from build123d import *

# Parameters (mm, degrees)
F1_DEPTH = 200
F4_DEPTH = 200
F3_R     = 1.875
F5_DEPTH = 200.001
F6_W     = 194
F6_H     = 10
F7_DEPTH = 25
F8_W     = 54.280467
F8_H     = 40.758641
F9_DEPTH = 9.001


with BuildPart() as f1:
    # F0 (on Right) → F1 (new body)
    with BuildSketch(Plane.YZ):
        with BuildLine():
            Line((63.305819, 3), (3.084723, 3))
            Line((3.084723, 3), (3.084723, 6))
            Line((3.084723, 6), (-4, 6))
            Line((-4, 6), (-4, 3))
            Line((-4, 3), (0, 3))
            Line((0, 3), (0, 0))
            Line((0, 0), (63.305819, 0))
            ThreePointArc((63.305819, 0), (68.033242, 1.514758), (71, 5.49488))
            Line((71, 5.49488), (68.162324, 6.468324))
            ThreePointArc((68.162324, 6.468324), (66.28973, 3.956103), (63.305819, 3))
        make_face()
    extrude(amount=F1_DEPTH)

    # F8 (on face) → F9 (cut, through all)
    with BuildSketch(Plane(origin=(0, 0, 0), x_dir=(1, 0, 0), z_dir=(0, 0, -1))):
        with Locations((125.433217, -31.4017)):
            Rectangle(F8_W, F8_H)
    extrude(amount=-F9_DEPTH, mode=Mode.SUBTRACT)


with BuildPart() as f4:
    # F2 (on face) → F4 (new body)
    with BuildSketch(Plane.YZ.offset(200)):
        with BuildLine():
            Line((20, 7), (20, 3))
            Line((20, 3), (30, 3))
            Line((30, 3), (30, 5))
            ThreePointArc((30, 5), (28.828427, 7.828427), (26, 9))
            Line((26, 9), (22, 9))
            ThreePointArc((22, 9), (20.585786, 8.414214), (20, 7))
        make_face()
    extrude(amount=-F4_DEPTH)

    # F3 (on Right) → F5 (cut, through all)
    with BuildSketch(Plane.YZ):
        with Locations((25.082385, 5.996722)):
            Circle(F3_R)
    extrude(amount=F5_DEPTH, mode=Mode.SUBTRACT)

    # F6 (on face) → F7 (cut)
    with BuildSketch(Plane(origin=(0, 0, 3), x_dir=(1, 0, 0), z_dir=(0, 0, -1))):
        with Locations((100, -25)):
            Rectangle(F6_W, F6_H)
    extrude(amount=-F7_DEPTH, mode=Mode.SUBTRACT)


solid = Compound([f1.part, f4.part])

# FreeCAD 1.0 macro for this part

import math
import FreeCAD as App
import Part
import Sketcher
from FreeCAD import Vector
Q = App.Units.Quantity

doc = App.newDocument("Part")
body = doc.addObject("PartDesign::Body", "Body")

# Sketch on YZ plane
sketch1 = body.newObject("Sketcher::SketchObject", "Sketch")
sketch1.AttachmentSupport = (doc.getObject("YZ_Plane"), [""])
sketch1.MapMode = "FlatFace"
sketch1.addGeometry(Part.LineSegment(Vector(63.3, 3, 0), Vector(3.1, 3, 0)), False)
sketch1.addGeometry(Part.LineSegment(Vector(3.1, 3, 0), Vector(3.1, 6, 0)), False)
sketch1.addGeometry(Part.LineSegment(Vector(3.1, 6, 0), Vector(-4, 6, 0)), False)
sketch1.addGeometry(Part.LineSegment(Vector(-4, 6, 0), Vector(-4, 3, 0)), False)
sketch1.addGeometry(Part.LineSegment(Vector(-4, 3, 0), Vector(0, 3, 0)), False)
sketch1.addGeometry(Part.LineSegment(Vector(0, 3, 0), Vector(0, 0, 0)), False)
sketch1.addGeometry(Part.LineSegment(Vector(0, 0, 0), Vector(63.3, 0, 0)), False)
sketch1.addGeometry(Part.ArcOfCircle(Part.Circle(Vector(63.3, 8.1, 0), Vector(0, 0, 1), 8.1), math.radians(-90), math.radians(-19)), False)
sketch1.addGeometry(Part.LineSegment(Vector(71, 5.5, 0), Vector(68.2, 6.5, 0)), False)
sketch1.addGeometry(Part.ArcOfCircle(Part.Circle(Vector(63.3, 8.1, 0), Vector(0, 0, 1), 5.1), math.radians(-90), math.radians(-19)), False)
sketch1.addConstraint(Sketcher.Constraint("Coincident", 0, 2, 1, 1))
sketch1.addConstraint(Sketcher.Constraint("Coincident", 1, 2, 2, 1))
sketch1.addConstraint(Sketcher.Constraint("Coincident", 2, 2, 3, 1))
sketch1.addConstraint(Sketcher.Constraint("Coincident", 3, 2, 4, 1))
sketch1.addConstraint(Sketcher.Constraint("Coincident", 4, 2, 5, 1))
sketch1.addConstraint(Sketcher.Constraint("Coincident", 5, 2, 6, 1))
sketch1.addConstraint(Sketcher.Constraint("Tangent", 6, 2, 7, 1))
sketch1.addConstraint(Sketcher.Constraint("Coincident", 7, 2, 8, 1))
sketch1.addConstraint(Sketcher.Constraint("Coincident", 8, 2, 9, 2))
sketch1.addConstraint(Sketcher.Constraint("Tangent", 9, 1, 0, 1))
sketch1.addConstraint(Sketcher.Constraint("Horizontal", 0))
sketch1.addConstraint(Sketcher.Constraint("Vertical", 1))
sketch1.addConstraint(Sketcher.Constraint("Horizontal", 2))
sketch1.addConstraint(Sketcher.Constraint("Vertical", 3))
sketch1.addConstraint(Sketcher.Constraint("Horizontal", 4))
sketch1.addConstraint(Sketcher.Constraint("Vertical", 5))
sketch1.addConstraint(Sketcher.Constraint("Horizontal", 6))
sketch1.addConstraint(Sketcher.Constraint("Coincident", 5, 2, -1, 1))
sketch1.addConstraint(Sketcher.Constraint("Coincident", 9, 3, 7, 3))
sketch1.addConstraint(Sketcher.Constraint("Horizontal", 0, 2, 3, 2))
sketch1.addConstraint(Sketcher.Constraint("Equal", 3, 5))
sketch1.addConstraint(Sketcher.Constraint("DistanceX", 4, 1, 4, 2, Q("4 mm")))
sketch1.addConstraint(Sketcher.Constraint("DistanceY", 1, 1, 1, 2, Q("3 mm")))
sketch1.addConstraint(Sketcher.Constraint("DistanceX", -1, 1, 7, 2, Q("71 mm")))
sketch1.addConstraint(Sketcher.Constraint("Radius", 7, Q("8.134313 mm")))
sketch1.addConstraint(Sketcher.Constraint("DistanceX", 6, 1, 6, 2, Q("63.305819 mm")))
sketch1.addConstraint(Sketcher.Constraint("DistanceX", 1, 2, 8, 2, Q("65.077601 mm")))
sketch1.addConstraint(Sketcher.Constraint("DistanceX", 0, 2, 0, 1, Q("60.221096 mm")))
pad1 = body.newObject("PartDesign::Pad", "Pad")
pad1.Profile = sketch1
pad1.Length = 200

# Sketch on XY plane
sketch2 = body.newObject("Sketcher::SketchObject", "Sketch001")
sketch2.AttachmentSupport = (doc.getObject("XY_Plane"), [""])
sketch2.MapMode = "FlatFace"
sketch2.addGeometry(Part.LineSegment(Vector(98, 11, 0), Vector(98, 52, 0)), False)
sketch2.addGeometry(Part.LineSegment(Vector(98, 52, 0), Vector(153, 52, 0)), False)
sketch2.addGeometry(Part.LineSegment(Vector(153, 52, 0), Vector(153, 11, 0)), False)
sketch2.addGeometry(Part.LineSegment(Vector(153, 11, 0), Vector(98, 11, 0)), False)
sketch2.addConstraint(Sketcher.Constraint("Coincident", 0, 2, 1, 1))
sketch2.addConstraint(Sketcher.Constraint("Coincident", 1, 2, 2, 1))
sketch2.addConstraint(Sketcher.Constraint("Coincident", 2, 2, 3, 1))
sketch2.addConstraint(Sketcher.Constraint("Coincident", 3, 2, 0, 1))
sketch2.addConstraint(Sketcher.Constraint("Vertical", 0))
sketch2.addConstraint(Sketcher.Constraint("Horizontal", 1))
sketch2.addConstraint(Sketcher.Constraint("Vertical", 2))
sketch2.addConstraint(Sketcher.Constraint("Horizontal", 3))
sketch2.addConstraint(Sketcher.Constraint("DistanceY", 0, 1, 0, 2, Q("40.758641 mm")))
sketch2.addConstraint(Sketcher.Constraint("DistanceX", 1, 1, 1, 2, Q("54.280467 mm")))
sketch2.addConstraint(Sketcher.Constraint("DistanceY", -1, 1, 0, 2, Q("51.78102 mm")))
sketch2.addConstraint(Sketcher.Constraint("DistanceX", -1, 1, 1, 2, Q("152.573451 mm")))
pocket1 = body.newObject("PartDesign::Pocket", "Pocket")
pocket1.Profile = sketch2
pocket1.Type = "ThroughAll"
pocket1.Reversed = True
body2 = doc.addObject("PartDesign::Body", "Body001")
body2.AllowCompound = True

# Sketch on YZ plane
sketch3 = body2.newObject("Sketcher::SketchObject", "Sketch002")
sketch3.AttachmentSupport = (doc.getObject("YZ_Plane001"), [""])
sketch3.MapMode = "FlatFace"
sketch3.AttachmentOffset = App.Placement(Vector(0, 0, 200), App.Rotation())
sketch3.addGeometry(Part.LineSegment(Vector(20, 7, 0), Vector(20, 3, 0)), False)
sketch3.addGeometry(Part.LineSegment(Vector(20, 3, 0), Vector(30, 3, 0)), False)
sketch3.addGeometry(Part.LineSegment(Vector(30, 3, 0), Vector(30, 5, 0)), False)
sketch3.addGeometry(Part.ArcOfCircle(Part.Circle(Vector(26, 5, 0), Vector(0, 0, 1), 4), math.radians(0), math.radians(90)), False)
sketch3.addGeometry(Part.LineSegment(Vector(26, 9, 0), Vector(22, 9, 0)), False)
sketch3.addGeometry(Part.ArcOfCircle(Part.Circle(Vector(22, 7, 0), Vector(0, 0, 1), 2), math.radians(90), math.radians(180)), False)
sketch3.addConstraint(Sketcher.Constraint("Coincident", 0, 2, 1, 1))
sketch3.addConstraint(Sketcher.Constraint("Coincident", 1, 2, 2, 1))
sketch3.addConstraint(Sketcher.Constraint("Tangent", 2, 2, 3, 1))
sketch3.addConstraint(Sketcher.Constraint("Tangent", 3, 2, 4, 1))
sketch3.addConstraint(Sketcher.Constraint("Tangent", 4, 2, 5, 1))
sketch3.addConstraint(Sketcher.Constraint("Tangent", 5, 2, 0, 1))
sketch3.addConstraint(Sketcher.Constraint("Vertical", 0))
sketch3.addConstraint(Sketcher.Constraint("Horizontal", 1))
sketch3.addConstraint(Sketcher.Constraint("Vertical", 2))
sketch3.addConstraint(Sketcher.Constraint("Horizontal", 4))
sketch3.addConstraint(Sketcher.Constraint("Equal", 4, 0))
sketch3.addConstraint(Sketcher.Constraint("Radius", 3, Q("4 mm")))
sketch3.addConstraint(Sketcher.Constraint("Radius", 5, Q("1.999999 mm")))
sketch3.addConstraint(Sketcher.Constraint("DistanceX", 1, 1, 1, 2, Q("10 mm")))
sketch3.addConstraint(Sketcher.Constraint("DistanceX", -1, 1, 3, 3, Q("26 mm")))
sketch3.addConstraint(Sketcher.Constraint("DistanceY", -1, 1, 3, 3, Q("5 mm")))
pad2 = body2.newObject("PartDesign::Pad", "Pad001")
pad2.Profile = sketch3
pad2.Length = 200
pad2.Reversed = True

# Sketch on YZ plane
sketch4 = body2.newObject("Sketcher::SketchObject", "Sketch003")
sketch4.AttachmentSupport = (doc.getObject("YZ_Plane001"), [""])
sketch4.MapMode = "FlatFace"
sketch4.addGeometry(Part.Circle(Vector(25.1, 6, 0), Vector(0, 0, 1), 1.9), False)
sketch4.addConstraint(Sketcher.Constraint("Diameter", 0, Q("3.75 mm")))
sketch4.addConstraint(Sketcher.Constraint("DistanceX", -1, 1, 0, 3, Q("25.082385 mm")))
sketch4.addConstraint(Sketcher.Constraint("DistanceY", -1, 1, 0, 3, Q("5.996722 mm")))
pocket2 = body2.newObject("PartDesign::Pocket", "Pocket001")
pocket2.Profile = sketch4
pocket2.Type = "ThroughAll"
pocket2.Reversed = True

# Sketch on XY plane
sketch5 = body2.newObject("Sketcher::SketchObject", "Sketch004")
sketch5.AttachmentSupport = (doc.getObject("XY_Plane001"), [""])
sketch5.MapMode = "FlatFace"
sketch5.AttachmentOffset = App.Placement(Vector(0, 0, 3), App.Rotation())
sketch5.addGeometry(Part.LineSegment(Vector(3, 20, 0), Vector(3, 30, 0)), False)
sketch5.addGeometry(Part.LineSegment(Vector(3, 30, 0), Vector(197, 30, 0)), False)
sketch5.addGeometry(Part.LineSegment(Vector(197, 30, 0), Vector(197, 20, 0)), False)
sketch5.addGeometry(Part.LineSegment(Vector(197, 20, 0), Vector(3, 20, 0)), False)
sketch5.addConstraint(Sketcher.Constraint("Coincident", 0, 2, 1, 1))
sketch5.addConstraint(Sketcher.Constraint("Coincident", 1, 2, 2, 1))
sketch5.addConstraint(Sketcher.Constraint("Coincident", 2, 2, 3, 1))
sketch5.addConstraint(Sketcher.Constraint("Coincident", 3, 2, 0, 1))
sketch5.addConstraint(Sketcher.Constraint("Vertical", 0))
sketch5.addConstraint(Sketcher.Constraint("Horizontal", 1))
sketch5.addConstraint(Sketcher.Constraint("Vertical", 2))
sketch5.addConstraint(Sketcher.Constraint("Horizontal", 3))
sketch5.addConstraint(Sketcher.Constraint("DistanceX", 1, 1, 1, 2, Q("194 mm")))
sketch5.addConstraint(Sketcher.Constraint("DistanceY", 0, 1, 0, 2, Q("10 mm")))
sketch5.addConstraint(Sketcher.Constraint("DistanceX", -1, 1, 0, 2, Q("3 mm")))
sketch5.addConstraint(Sketcher.Constraint("DistanceY", -1, 1, 0, 2, Q("30 mm")))
pocket3 = body2.newObject("PartDesign::Pocket", "Pocket002")
pocket3.Profile = sketch5
pocket3.Length = 25
pocket3.Reversed = True

doc.recompute()
